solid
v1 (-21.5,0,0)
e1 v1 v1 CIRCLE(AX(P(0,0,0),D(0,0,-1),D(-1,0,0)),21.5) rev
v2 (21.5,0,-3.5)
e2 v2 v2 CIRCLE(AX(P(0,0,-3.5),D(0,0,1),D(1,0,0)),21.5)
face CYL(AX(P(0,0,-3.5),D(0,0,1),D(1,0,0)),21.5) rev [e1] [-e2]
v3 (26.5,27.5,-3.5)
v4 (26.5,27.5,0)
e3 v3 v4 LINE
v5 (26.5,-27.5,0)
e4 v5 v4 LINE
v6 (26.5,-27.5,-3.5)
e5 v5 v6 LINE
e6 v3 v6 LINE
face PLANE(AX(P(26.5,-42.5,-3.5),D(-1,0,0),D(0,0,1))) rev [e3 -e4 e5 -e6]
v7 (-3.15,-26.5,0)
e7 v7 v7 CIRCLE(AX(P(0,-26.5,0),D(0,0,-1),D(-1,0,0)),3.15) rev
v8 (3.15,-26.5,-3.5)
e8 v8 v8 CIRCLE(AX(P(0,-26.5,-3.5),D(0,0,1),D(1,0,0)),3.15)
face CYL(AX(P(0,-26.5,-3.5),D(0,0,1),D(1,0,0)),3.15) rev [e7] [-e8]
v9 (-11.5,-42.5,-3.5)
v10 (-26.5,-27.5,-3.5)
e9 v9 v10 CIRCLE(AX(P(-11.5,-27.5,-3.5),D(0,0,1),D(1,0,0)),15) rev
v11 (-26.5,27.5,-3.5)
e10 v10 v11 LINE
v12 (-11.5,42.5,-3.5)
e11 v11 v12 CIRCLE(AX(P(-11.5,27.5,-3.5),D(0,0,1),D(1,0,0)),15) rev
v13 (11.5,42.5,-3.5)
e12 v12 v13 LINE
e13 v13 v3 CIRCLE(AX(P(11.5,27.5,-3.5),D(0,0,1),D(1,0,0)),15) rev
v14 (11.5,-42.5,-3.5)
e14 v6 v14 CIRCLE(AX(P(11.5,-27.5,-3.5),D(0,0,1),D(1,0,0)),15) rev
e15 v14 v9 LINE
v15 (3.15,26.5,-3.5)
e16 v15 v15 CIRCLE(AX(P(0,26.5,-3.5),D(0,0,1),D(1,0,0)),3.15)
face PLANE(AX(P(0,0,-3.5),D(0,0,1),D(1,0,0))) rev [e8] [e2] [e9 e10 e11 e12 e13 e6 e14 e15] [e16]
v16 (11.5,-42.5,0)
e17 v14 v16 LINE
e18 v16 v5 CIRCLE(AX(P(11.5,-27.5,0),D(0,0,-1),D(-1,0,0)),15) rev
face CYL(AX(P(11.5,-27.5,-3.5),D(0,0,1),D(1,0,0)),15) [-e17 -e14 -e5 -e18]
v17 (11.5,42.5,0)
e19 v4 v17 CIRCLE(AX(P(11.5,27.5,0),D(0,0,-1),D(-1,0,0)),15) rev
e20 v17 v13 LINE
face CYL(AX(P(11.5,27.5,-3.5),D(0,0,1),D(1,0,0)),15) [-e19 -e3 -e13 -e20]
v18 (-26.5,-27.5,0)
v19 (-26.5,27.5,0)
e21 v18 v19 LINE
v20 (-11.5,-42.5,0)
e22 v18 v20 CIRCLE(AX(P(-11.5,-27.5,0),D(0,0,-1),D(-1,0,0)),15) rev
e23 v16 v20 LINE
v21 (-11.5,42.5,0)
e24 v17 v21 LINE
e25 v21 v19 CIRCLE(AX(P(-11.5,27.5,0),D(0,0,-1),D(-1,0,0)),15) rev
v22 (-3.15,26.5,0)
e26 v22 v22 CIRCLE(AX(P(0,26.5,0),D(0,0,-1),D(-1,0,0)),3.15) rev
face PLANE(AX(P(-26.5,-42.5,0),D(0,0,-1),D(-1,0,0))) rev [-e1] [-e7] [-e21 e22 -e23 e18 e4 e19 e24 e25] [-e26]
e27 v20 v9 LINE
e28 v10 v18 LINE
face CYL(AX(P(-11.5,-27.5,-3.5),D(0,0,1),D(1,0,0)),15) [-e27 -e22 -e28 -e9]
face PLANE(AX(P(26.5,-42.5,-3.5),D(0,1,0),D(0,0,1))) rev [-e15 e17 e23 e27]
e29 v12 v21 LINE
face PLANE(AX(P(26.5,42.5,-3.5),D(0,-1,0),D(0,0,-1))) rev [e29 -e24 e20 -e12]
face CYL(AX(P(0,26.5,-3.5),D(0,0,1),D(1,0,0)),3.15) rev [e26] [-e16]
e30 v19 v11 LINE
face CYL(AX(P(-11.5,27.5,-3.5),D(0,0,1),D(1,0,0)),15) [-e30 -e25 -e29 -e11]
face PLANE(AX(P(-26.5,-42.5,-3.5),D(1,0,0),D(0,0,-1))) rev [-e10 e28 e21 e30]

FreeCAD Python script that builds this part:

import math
import FreeCAD as App
import Part
import Sketcher
from FreeCAD import Vector


def edges_at(feature, points):
    """Names of the edges that pass closest to the given points."""
    edges = feature.Shape.Edges
    near = lambda p: min(range(len(edges)), key=lambda i: edges[i].distToShape(Part.Vertex(*p))[0])
    return sorted({f"Edge{near(p) + 1}" for p in points})


def add_polygon(sketch, points):
    """Adds a closed chain of lines whose ends are joined by coincident constraints."""
    first, n = sketch.GeometryCount, len(points)
    for a, b in zip(points, points[1:] + points[:1]):
        sketch.addGeometry(Part.LineSegment(App.Vector(*a, 0), App.Vector(*b, 0)), False)
    for i in range(n):
        sketch.addConstraint(Sketcher.Constraint("Coincident", first + i, 2, first + (i + 1) % n, 1))

doc = App.newDocument("Part")
body = doc.addObject("PartDesign::Body", "Body")

sketch1 = body.newObject("Sketcher::SketchObject", "Sketch")
sketch1.AttachmentSupport = (doc.getObject("XY_Plane"), [""])
sketch1.MapMode = "FlatFace"
sketch1.addGeometry([
    Part.LineSegment(Vector(25, 65, 0), Vector(-25, 65, 0)),
    Part.ArcOfCircle(Part.Circle(Vector(-25, 57, 0), Vector(0, 0, 1), 8), math.radians(90), math.radians(180)),
    Part.LineSegment(Vector(-33, 57, 0), Vector(-33, -57, 0)),
    Part.ArcOfCircle(Part.Circle(Vector(-25, -57, 0), Vector(0, 0, 1), 8), math.radians(-180), math.radians(-90)),
    Part.LineSegment(Vector(-25, -65, 0), Vector(25, -65, 0)),
    Part.ArcOfCircle(Part.Circle(Vector(25, -57, 0), Vector(0, 0, 1), 8), math.radians(-90), math.radians(0)),
    Part.LineSegment(Vector(33, -57, 0), Vector(33, 57, 0)),
    Part.ArcOfCircle(Part.Circle(Vector(25, 57, 0), Vector(0, 0, 1), 8), math.radians(0), math.radians(90)),
], False)
sketch1.addConstraint([
    Sketcher.Constraint("Tangent", 0, 2, 1, 1),
    Sketcher.Constraint("Tangent", 1, 2, 2, 1),
    Sketcher.Constraint("Tangent", 2, 2, 3, 1),
    Sketcher.Constraint("Tangent", 3, 2, 4, 1),
    Sketcher.Constraint("Tangent", 4, 2, 5, 1),
    Sketcher.Constraint("Tangent", 5, 2, 6, 1),
    Sketcher.Constraint("Tangent", 6, 2, 7, 1),
    Sketcher.Constraint("Tangent", 7, 2, 0, 1),
    Sketcher.Constraint("Horizontal", 0),
    Sketcher.Constraint("Vertical", 2),
    Sketcher.Constraint("Horizontal", 4),
    Sketcher.Constraint("Vertical", 6),
    Sketcher.Constraint("Equal", 1, 3),
    Sketcher.Constraint("Equal", 3, 5),
    Sketcher.Constraint("Equal", 5, 7),
    Sketcher.Constraint("Symmetric", 1, 3, 5, 3, -1, 1),
    Sketcher.Constraint("Radius", 1, 8.0),
    Sketcher.Constraint("DistanceX", 0, 2, 0, 1, 50.0),
    Sketcher.Constraint("DistanceY", 2, 2, 2, 1, 114.0),
])
pad1 = body.newObject("PartDesign::Pad", "Pad")
pad1.Profile = sketch1
pad1.Length = 5

sketch2 = body.newObject("Sketcher::SketchObject", "Sketch001")
sketch2.AttachmentSupport = (doc.getObject("XY_Plane"), [""])
sketch2.MapMode = "FlatFace"
add_polygon(sketch2, [(26, 42), (26, -42), (-26, -42), (-26, 42)])
sketch2.addConstraint([
    Sketcher.Constraint("Vertical", 0),
    Sketcher.Constraint("Horizontal", 1),
    Sketcher.Constraint("Vertical", 2),
    Sketcher.Constraint("Horizontal", 3),
    Sketcher.Constraint("Symmetric", 0, 2, 2, 2, -1, 1),
    Sketcher.Constraint("DistanceX", 1, 2, 1, 1, 53.0),
    Sketcher.Constraint("DistanceY", 0, 2, 0, 1, 85.0),
])
pad2 = body.newObject("PartDesign::Pad", "Pad001")
pad2.Profile = sketch2
pad2.Length = 3.5
pad2.Reversed = True

sketch3 = body.newObject("Sketcher::SketchObject", "Sketch002")
sketch3.AttachmentSupport = (doc.getObject("XY_Plane"), [""])
sketch3.MapMode = "FlatFace"
sketch3.AttachmentOffset = App.Placement(Vector(0, 0, 5), App.Rotation())
sketch3.addGeometry(Part.Circle(Vector(0, 0, 0), Vector(0, 0, 1), 22), False)
sketch3.addConstraint([
    Sketcher.Constraint("Coincident", 0, 3, -1, 1),
    Sketcher.Constraint("Diameter", 0, 43.0),
])
pocket1 = body.newObject("PartDesign::Pocket", "Pocket")
pocket1.Profile = sketch3
pocket1.Type = "ThroughAll"

sketch4 = body.newObject("Sketcher::SketchObject", "Sketch003")
sketch4.AttachmentSupport = (doc.getObject("XY_Plane"), [""])
sketch4.MapMode = "FlatFace"
sketch4.AttachmentOffset = App.Placement(Vector(0, 0, 5), App.Rotation())
sketch4.addGeometry([
    Part.Circle(Vector(0, 26.5, 0), Vector(0, 0, 1), 3.1),
    Part.Circle(Vector(0, -26.5, 0), Vector(0, 0, 1), 3.1),
], False)
sketch4.addConstraint([
    Sketcher.Constraint("Equal", 0, 1),
    Sketcher.Constraint("Symmetric", 0, 3, 1, 3, -1, 1),
    Sketcher.Constraint("PointOnObject", 0, 3, -2),
    Sketcher.Constraint("Diameter", 0, 6.3),
    Sketcher.Constraint("DistanceY", 1, 3, 0, 3, 53.0),
])
pocket2 = body.newObject("PartDesign::Pocket", "Pocket001")
pocket2.Profile = sketch4
pocket2.Type = "ThroughAll"

sketch5 = body.newObject("Sketcher::SketchObject", "Sketch004")
sketch5.AttachmentSupport = (doc.getObject("XY_Plane"), [""])
sketch5.MapMode = "FlatFace"
add_polygon(sketch5, [(40, 70), (40, -70), (-42, -70), (-42, 70)])
add_polygon(sketch5, [(-26, -42), (26, -42), (26, 42), (-26, 42)])
sketch5.addConstraint([
    Sketcher.Constraint("Vertical", 0),
    Sketcher.Constraint("Horizontal", 1),
    Sketcher.Constraint("Vertical", 2),
    Sketcher.Constraint("Horizontal", 3),
    Sketcher.Constraint("Horizontal", 4),
    Sketcher.Constraint("Vertical", 5),
    Sketcher.Constraint("Horizontal", 6),
    Sketcher.Constraint("Vertical", 7),
    Sketcher.Constraint("Symmetric", 4, 2, 6, 2, -1, 1),
    Sketcher.Constraint("DistanceX", 4, 1, 4, 2, 53.0),
    Sketcher.Constraint("DistanceY", 5, 1, 5, 2, 85.0),
    Sketcher.Constraint("DistanceY", 0, 2, 0, 1, 140.053159),
    Sketcher.Constraint("DistanceX", 1, 2, 1, 1, 82.074163),
    Sketcher.Constraint("DistanceX", -1, 1, 0, 2, 40.058215),
    Sketcher.Constraint("DistanceY", 0, 2, -1, 1, 70.177174),
])
pocket3 = body.newObject("PartDesign::Pocket", "Pocket002")
pocket3.Profile = sketch5
pocket3.Type = "ThroughAll"
pocket3.Reversed = True
doc.recompute()

fillet = body.newObject("PartDesign::Fillet", "Fillet")
fillet.Base = (pocket3, edges_at(pocket3, [
    (-26.5, -42.5, 0.75),
    (-26.5, 42.5, 0.75),
    (26.5, 42.5, 0.75),
    (26.5, -42.5, 0.75),
]))
fillet.Radius = 15

sketch6 = body.newObject("Sketcher::SketchObject", "Sketch005")
sketch6.AttachmentSupport = (doc.getObject("XZ_Plane"), [""])
sketch6.MapMode = "FlatFace"
sketch6.AttachmentOffset = App.Placement(Vector(0, 0, -42.5), App.Rotation())
add_polygon(sketch6, [(-26, 0), (-26, 5), (26, 5), (26, 0)])
sketch6.addConstraint([
    Sketcher.Constraint("Vertical", 0),
    Sketcher.Constraint("Horizontal", 1),
    Sketcher.Constraint("Vertical", 2),
    Sketcher.Constraint("Horizontal", 3),
    Sketcher.Constraint("Symmetric", 2, 2, 3, 2, -1, 1),
    Sketcher.Constraint("DistanceX", 1, 1, 1, 2, 53.0),
    Sketcher.Constraint("DistanceY", 0, 1, 0, 2, 5.0),
])
pocket4 = body.newObject("PartDesign::Pocket", "Pocket003")
pocket4.Profile = sketch6
pocket4.Type = "ThroughAll"
pocket4.Reversed = True

sketch7 = body.newObject("Sketcher::SketchObject", "Sketch006")
sketch7.AttachmentSupport = (doc.getObject("XY_Plane"), [""])
sketch7.MapMode = "FlatFace"
sketch7.AttachmentOffset = App.Placement(Vector(0, 0, 5), App.Rotation())
sketch7.addGeometry([
    Part.Circle(Vector(-27.8, 59.8, 0), Vector(0, 0, 1), 2.9),
    Part.Circle(Vector(27.8, 59.8, 0), Vector(0, 0, 1), 2.9),
    Part.Circle(Vector(-27.8, -59.8, 0), Vector(0, 0, 1), 2.9),
    Part.Circle(Vector(27.8, -59.8, 0), Vector(0, 0, 1), 2.9),
], False)
sketch7.addConstraint([
    Sketcher.Constraint("Equal", 0, 1),
    Sketcher.Constraint("Equal", 1, 2),
    Sketcher.Constraint("Equal", 2, 3),
    Sketcher.Constraint("Symmetric", 1, 3, 2, 3, -1, 1),
    Sketcher.Constraint("Symmetric", 0, 3, 3, 3, -1, 1),
    Sketcher.Constraint("Symmetric", 0, 3, 1, 3, -2),
    Sketcher.Constraint("Diameter", 0, 5.8),
    Sketcher.Constraint("DistanceX", 0, 3, 1, 3, 55.5),
    Sketcher.Constraint("DistanceY", 2, 3, 0, 3, 119.5),
])
pocket5 = body.newObject("PartDesign::Pocket", "Pocket004")
pocket5.Profile = sketch7
pocket5.Length = 3

sketch8 = body.newObject("Sketcher::SketchObject", "Sketch007")
sketch8.AttachmentSupport = (doc.getObject("XY_Plane"), [""])
sketch8.MapMode = "FlatFace"
sketch8.AttachmentOffset = App.Placement(Vector(0, 0, 2), App.Rotation())
sketch8.addGeometry([
    Part.Circle(Vector(-27.8, 59.8, 0), Vector(0, 0, 1), 1.8),
    Part.Circle(Vector(27.8, 59.8, 0), Vector(0, 0, 1), 1.8),
    Part.Circle(Vector(27.8, -59.8, 0), Vector(0, 0, 1), 1.8),
    Part.Circle(Vector(-27.8, -59.8, 0), Vector(0, 0, 1), 1.8),
], False)
sketch8.addConstraint([
    Sketcher.Constraint("Equal", 0, 1),
    Sketcher.Constraint("Equal", 1, 2),
    Sketcher.Constraint("Equal", 2, 3),
    Sketcher.Constraint("Symmetric", 0, 3, 2, 3, -1, 1),
    Sketcher.Constraint("Symmetric", 1, 3, 3, 3, -1, 1),
    Sketcher.Constraint("Symmetric", 0, 3, 1, 3, -2),
    Sketcher.Constraint("Diameter", 0, 3.5),
    Sketcher.Constraint("DistanceX", 0, 3, 1, 3, 55.5),
    Sketcher.Constraint("DistanceY", 2, 3, 1, 3, 119.5),
])
pocket6 = body.newObject("PartDesign::Pocket", "Pocket005")
pocket6.Profile = sketch8
pocket6.Type = "ThroughAll"

sketch9 = body.newObject("Sketcher::SketchObject", "Sketch008")
sketch9.AttachmentSupport = (doc.getObject("XY_Plane"), [""])
sketch9.MapMode = "FlatFace"
sketch9.AttachmentOffset = App.Placement(Vector(0, 0, 5), App.Rotation())
sketch9.addGeometry([
    Part.LineSegment(Vector(-6, 26, 0), Vector(-6, -26, 0)),
    Part.ArcOfCircle(Part.Circle(Vector(0, -26, 0), Vector(0, 0, 1), 6), math.radians(180), math.radians(360)),
    Part.LineSegment(Vector(6, -26, 0), Vector(6, 26, 0)),
    Part.ArcOfCircle(Part.Circle(Vector(0, 26, 0), Vector(0, 0, 1), 6), math.radians(0), math.radians(180)),
], False)
sketch9.addConstraint([
    Sketcher.Constraint("Tangent", 0, 2, 1, 1),
    Sketcher.Constraint("Tangent", 1, 2, 2, 1),
    Sketcher.Constraint("Tangent", 2, 2, 3, 1),
    Sketcher.Constraint("Tangent", 3, 2, 0, 1),
    Sketcher.Constraint("Vertical", 0),
    Sketcher.Constraint("Vertical", 2),
    Sketcher.Constraint("Symmetric", 1, 3, 3, 3, -1, 1),
    Sketcher.Constraint("Radius", 1, 5.5),
    Sketcher.Constraint("DistanceY", 0, 2, 0, 1, 53.0),
])
pocket7 = body.newObject("PartDesign::Pocket", "Pocket006")
pocket7.Profile = sketch9
pocket7.Length = 3

sketch10 = body.newObject("Sketcher::SketchObject", "Sketch009")
sketch10.AttachmentSupport = (doc.getObject("XY_Plane"), [""])
sketch10.MapMode = "FlatFace"
sketch10.AttachmentOffset = App.Placement(Vector(0, 0, 5), App.Rotation())
sketch10.addGeometry([
    Part.LineSegment(Vector(-2, 65, 0), Vector(-2, 31, 0)),
    Part.ArcOfCircle(Part.Circle(Vector(0, 26, 0), Vector(0, 0, 1), 6), math.radians(63), math.radians(117)),
    Part.LineSegment(Vector(2, 31, 0), Vector(2, 65, 0)),
    Part.LineSegment(Vector(2, 65, 0), Vector(-2, 65, 0)),
    Part.LineSegment(Vector(-28, 14, 0), Vector(-21, 14, 0)),
    Part.ArcOfCircle(Part.Circle(Vector(0, 0, 0), Vector(0, 0, 1), 25), math.radians(106), math.radians(147)),
    Part.LineSegment(Vector(-7, 24, 0), Vector(-7, 60, 0)),
    Part.LineSegment(Vector(-7, 60, 0), Vector(-22, 60, 0)),
    Part.ArcOfCircle(Part.Circle(Vector(-28, 60, 0), Vector(0, 0, 1), 6), math.radians(-90), math.radians(0)),
    Part.LineSegment(Vector(-28, 54, 0), Vector(-28, 14, 0)),
    Part.LineSegment(Vector(21, 14, 0), Vector(28, 14, 0)),
    Part.LineSegment(Vector(28, 14, 0), Vector(28, 54, 0)),
    Part.ArcOfCircle(Part.Circle(Vector(28, 60, 0), Vector(0, 0, 1), 6), math.radians(180), math.radians(270)),
    Part.LineSegment(Vector(22, 60, 0), Vector(7, 60, 0)),
    Part.LineSegment(Vector(7, 60, 0), Vector(7, 24, 0)),
    Part.ArcOfCircle(Part.Circle(Vector(0, 0, 0), Vector(0, 0, 1), 25), math.radians(33), math.radians(74)),
    Part.LineSegment(Vector(28, -54, 0), Vector(28, -14, 0)),
    Part.LineSegment(Vector(28, -14, 0), Vector(21, -14, 0)),
    Part.ArcOfCircle(Part.Circle(Vector(0, 0, 0), Vector(0, 0, 1), 25), math.radians(-74), math.radians(-33)),
    Part.LineSegment(Vector(7, -24, 0), Vector(7, -60, 0)),
    Part.LineSegment(Vector(7, -60, 0), Vector(22, -60, 0)),
    Part.ArcOfCircle(Part.Circle(Vector(28, -60, 0), Vector(0, 0, 1), 6), math.radians(90), math.radians(180)),
    Part.LineSegment(Vector(2, -65, 0), Vector(2, -31, 0)),
    Part.ArcOfCircle(Part.Circle(Vector(0, -26, 0), Vector(0, 0, 1), 6), math.radians(-117), math.radians(-63)),
    Part.LineSegment(Vector(-2, -31, 0), Vector(-2, -65, 0)),
    Part.LineSegment(Vector(-2, -65, 0), Vector(2, -65, 0)),
    Part.LineSegment(Vector(-7, -60, 0), Vector(-7, -24, 0)),
    Part.ArcOfCircle(Part.Circle(Vector(0, 0, 0), Vector(0, 0, 1), 25), math.radians(-147), math.radians(-106)),
    Part.LineSegment(Vector(-21, -14, 0), Vector(-28, -14, 0)),
    Part.LineSegment(Vector(-28, -14, 0), Vector(-28, -54, 0)),
    Part.ArcOfCircle(Part.Circle(Vector(-28, -60, 0), Vector(0, 0, 1), 6), math.radians(0), math.radians(90)),
    Part.LineSegment(Vector(-22, -60, 0), Vector(-7, -60, 0)),
], False)
sketch10.addConstraint([
    Sketcher.Constraint("Coincident", 0, 2, 1, 2),
    Sketcher.Constraint("Coincident", 1, 1, 2, 1),
    Sketcher.Constraint("Coincident", 2, 2, 3, 1),
    Sketcher.Constraint("Coincident", 3, 2, 0, 1),
    Sketcher.Constraint("Coincident", 4, 2, 5, 2),
    Sketcher.Constraint("Coincident", 5, 1, 6, 1),
    Sketcher.Constraint("Coincident", 6, 2, 7, 1),
    Sketcher.Constraint("Coincident", 7, 2, 8, 2),
    Sketcher.Constraint("Coincident", 8, 1, 9, 1),
    Sketcher.Constraint("Coincident", 9, 2, 4, 1),
    Sketcher.Constraint("Coincident", 10, 2, 11, 1),
    Sketcher.Constraint("Coincident", 11, 2, 12, 2),
    Sketcher.Constraint("Coincident", 12, 1, 13, 1),
    Sketcher.Constraint("Coincident", 13, 2, 14, 1),
    Sketcher.Constraint("Coincident", 14, 2, 15, 2),
    Sketcher.Constraint("Coincident", 15, 1, 10, 1),
    Sketcher.Constraint("Coincident", 16, 2, 17, 1),
    Sketcher.Constraint("Coincident", 17, 2, 18, 2),
    Sketcher.Constraint("Coincident", 18, 1, 19, 1),
    Sketcher.Constraint("Coincident", 19, 2, 20, 1),
    Sketcher.Constraint("Coincident", 20, 2, 21, 2),
    Sketcher.Constraint("Coincident", 21, 1, 16, 1),
    Sketcher.Constraint("Coincident", 22, 2, 23, 2),
    Sketcher.Constraint("Coincident", 23, 1, 24, 1),
    Sketcher.Constraint("Coincident", 24, 2, 25, 1),
    Sketcher.Constraint("Coincident", 25, 2, 22, 1),
    Sketcher.Constraint("Coincident", 26, 2, 27, 2),
    Sketcher.Constraint("Coincident", 27, 1, 28, 1),
    Sketcher.Constraint("Coincident", 28, 2, 29, 1),
    Sketcher.Constraint("Coincident", 29, 2, 30, 2),
    Sketcher.Constraint("Coincident", 30, 1, 31, 1),
    Sketcher.Constraint("Coincident", 31, 2, 26, 1),
    Sketcher.Constraint("Vertical", 0),
    Sketcher.Constraint("Vertical", 2),
    Sketcher.Constraint("Horizontal", 3),
    Sketcher.Constraint("Horizontal", 4),
    Sketcher.Constraint("Vertical", 6),
    Sketcher.Constraint("Horizontal", 7),
    Sketcher.Constraint("Vertical", 9),
    Sketcher.Constraint("Horizontal", 10),
    Sketcher.Constraint("Vertical", 11),
    Sketcher.Constraint("Horizontal", 13),
    Sketcher.Constraint("Vertical", 14),
    Sketcher.Constraint("Vertical", 16),
    Sketcher.Constraint("Horizontal", 17),
    Sketcher.Constraint("Vertical", 19),
    Sketcher.Constraint("Horizontal", 20),
    Sketcher.Constraint("Vertical", 22),
    Sketcher.Constraint("Vertical", 24),
    Sketcher.Constraint("Horizontal", 25),
    Sketcher.Constraint("Vertical", 26),
    Sketcher.Constraint("Horizontal", 28),
    Sketcher.Constraint("Vertical", 29),
    Sketcher.Constraint("Horizontal", 31),
    Sketcher.Constraint("Coincident", 5, 3, -1, 1),
    Sketcher.Constraint("Coincident", 15, 3, -1, 1),
    Sketcher.Constraint("Coincident", 18, 3, -1, 1),
    Sketcher.Constraint("Coincident", 27, 3, -1, 1),
    Sketcher.Constraint("Equal", 8, 12),
    Sketcher.Constraint("Equal", 5, 15),
    Sketcher.Constraint("Equal", 15, 18),
    Sketcher.Constraint("Equal", 12, 21),
    Sketcher.Constraint("Equal", 1, 23),
    Sketcher.Constraint("Equal", 18, 27),
    Sketcher.Constraint("Equal", 21, 30),
    Sketcher.Constraint("Symmetric", 8, 3, 21, 3, -1, 1),
    Sketcher.Constraint("Symmetric", 1, 3, 23, 3, -1, 1),
    Sketcher.Constraint("Symmetric", 12, 3, 30, 3, -1, 1),
    Sketcher.Constraint("Symmetric", 9, 2, 16, 2, -1, 1),
    Sketcher.Constraint("Symmetric", 6, 2, 19, 2, -1, 1),
    Sketcher.Constraint("Symmetric", 2, 2, 24, 2, -1, 1),
    Sketcher.Constraint("Symmetric", 10, 2, 28, 2, -1, 1),
    Sketcher.Constraint("Symmetric", 13, 2, 31, 2, -1, 1),
    Sketcher.Constraint("Symmetric", 8, 3, 12, 3, -2),
    Sketcher.Constraint("Symmetric", 0, 2, 1, 1, -2),
    Sketcher.Constraint("Symmetric", 9, 2, 10, 2, -2),
    Sketcher.Constraint("Symmetric", 6, 2, 13, 2, -2),
    Sketcher.Constraint("Horizontal", 12, 3, 6, 2),
    Sketcher.Constraint("Horizontal", 22, 2, 23, 1),
    Sketcher.Constraint("Vertical", 30, 3, 8, 1),
    Sketcher.Constraint("Radius", 5, 25.0),
    Sketcher.Constraint("Radius", 8, 6.0),
    Sketcher.Constraint("Radius", 1, 5.5),
    Sketcher.Constraint("DistanceX", 3, 2, 3, 1, 5.0),
    Sketcher.Constraint("DistanceX", 7, 2, 7, 1, 15.0),
    Sketcher.Constraint("DistanceY", 9, 2, 9, 1, 40.0),
    Sketcher.Constraint("DistanceY", -1, 1, 2, 2, 65.0),
    Sketcher.Constraint("DistanceY", 23, 3, 1, 3, 53.0),
    Sketcher.Constraint("DistanceX", 8, 3, 12, 3, 55.5),
    Sketcher.Constraint("DistanceY", 21, 3, 12, 3, 119.5),
])
pocket8 = body.newObject("PartDesign::Pocket", "Pocket007")
pocket8.Profile = sketch10
pocket8.Length = 1.5

doc.recompute()
